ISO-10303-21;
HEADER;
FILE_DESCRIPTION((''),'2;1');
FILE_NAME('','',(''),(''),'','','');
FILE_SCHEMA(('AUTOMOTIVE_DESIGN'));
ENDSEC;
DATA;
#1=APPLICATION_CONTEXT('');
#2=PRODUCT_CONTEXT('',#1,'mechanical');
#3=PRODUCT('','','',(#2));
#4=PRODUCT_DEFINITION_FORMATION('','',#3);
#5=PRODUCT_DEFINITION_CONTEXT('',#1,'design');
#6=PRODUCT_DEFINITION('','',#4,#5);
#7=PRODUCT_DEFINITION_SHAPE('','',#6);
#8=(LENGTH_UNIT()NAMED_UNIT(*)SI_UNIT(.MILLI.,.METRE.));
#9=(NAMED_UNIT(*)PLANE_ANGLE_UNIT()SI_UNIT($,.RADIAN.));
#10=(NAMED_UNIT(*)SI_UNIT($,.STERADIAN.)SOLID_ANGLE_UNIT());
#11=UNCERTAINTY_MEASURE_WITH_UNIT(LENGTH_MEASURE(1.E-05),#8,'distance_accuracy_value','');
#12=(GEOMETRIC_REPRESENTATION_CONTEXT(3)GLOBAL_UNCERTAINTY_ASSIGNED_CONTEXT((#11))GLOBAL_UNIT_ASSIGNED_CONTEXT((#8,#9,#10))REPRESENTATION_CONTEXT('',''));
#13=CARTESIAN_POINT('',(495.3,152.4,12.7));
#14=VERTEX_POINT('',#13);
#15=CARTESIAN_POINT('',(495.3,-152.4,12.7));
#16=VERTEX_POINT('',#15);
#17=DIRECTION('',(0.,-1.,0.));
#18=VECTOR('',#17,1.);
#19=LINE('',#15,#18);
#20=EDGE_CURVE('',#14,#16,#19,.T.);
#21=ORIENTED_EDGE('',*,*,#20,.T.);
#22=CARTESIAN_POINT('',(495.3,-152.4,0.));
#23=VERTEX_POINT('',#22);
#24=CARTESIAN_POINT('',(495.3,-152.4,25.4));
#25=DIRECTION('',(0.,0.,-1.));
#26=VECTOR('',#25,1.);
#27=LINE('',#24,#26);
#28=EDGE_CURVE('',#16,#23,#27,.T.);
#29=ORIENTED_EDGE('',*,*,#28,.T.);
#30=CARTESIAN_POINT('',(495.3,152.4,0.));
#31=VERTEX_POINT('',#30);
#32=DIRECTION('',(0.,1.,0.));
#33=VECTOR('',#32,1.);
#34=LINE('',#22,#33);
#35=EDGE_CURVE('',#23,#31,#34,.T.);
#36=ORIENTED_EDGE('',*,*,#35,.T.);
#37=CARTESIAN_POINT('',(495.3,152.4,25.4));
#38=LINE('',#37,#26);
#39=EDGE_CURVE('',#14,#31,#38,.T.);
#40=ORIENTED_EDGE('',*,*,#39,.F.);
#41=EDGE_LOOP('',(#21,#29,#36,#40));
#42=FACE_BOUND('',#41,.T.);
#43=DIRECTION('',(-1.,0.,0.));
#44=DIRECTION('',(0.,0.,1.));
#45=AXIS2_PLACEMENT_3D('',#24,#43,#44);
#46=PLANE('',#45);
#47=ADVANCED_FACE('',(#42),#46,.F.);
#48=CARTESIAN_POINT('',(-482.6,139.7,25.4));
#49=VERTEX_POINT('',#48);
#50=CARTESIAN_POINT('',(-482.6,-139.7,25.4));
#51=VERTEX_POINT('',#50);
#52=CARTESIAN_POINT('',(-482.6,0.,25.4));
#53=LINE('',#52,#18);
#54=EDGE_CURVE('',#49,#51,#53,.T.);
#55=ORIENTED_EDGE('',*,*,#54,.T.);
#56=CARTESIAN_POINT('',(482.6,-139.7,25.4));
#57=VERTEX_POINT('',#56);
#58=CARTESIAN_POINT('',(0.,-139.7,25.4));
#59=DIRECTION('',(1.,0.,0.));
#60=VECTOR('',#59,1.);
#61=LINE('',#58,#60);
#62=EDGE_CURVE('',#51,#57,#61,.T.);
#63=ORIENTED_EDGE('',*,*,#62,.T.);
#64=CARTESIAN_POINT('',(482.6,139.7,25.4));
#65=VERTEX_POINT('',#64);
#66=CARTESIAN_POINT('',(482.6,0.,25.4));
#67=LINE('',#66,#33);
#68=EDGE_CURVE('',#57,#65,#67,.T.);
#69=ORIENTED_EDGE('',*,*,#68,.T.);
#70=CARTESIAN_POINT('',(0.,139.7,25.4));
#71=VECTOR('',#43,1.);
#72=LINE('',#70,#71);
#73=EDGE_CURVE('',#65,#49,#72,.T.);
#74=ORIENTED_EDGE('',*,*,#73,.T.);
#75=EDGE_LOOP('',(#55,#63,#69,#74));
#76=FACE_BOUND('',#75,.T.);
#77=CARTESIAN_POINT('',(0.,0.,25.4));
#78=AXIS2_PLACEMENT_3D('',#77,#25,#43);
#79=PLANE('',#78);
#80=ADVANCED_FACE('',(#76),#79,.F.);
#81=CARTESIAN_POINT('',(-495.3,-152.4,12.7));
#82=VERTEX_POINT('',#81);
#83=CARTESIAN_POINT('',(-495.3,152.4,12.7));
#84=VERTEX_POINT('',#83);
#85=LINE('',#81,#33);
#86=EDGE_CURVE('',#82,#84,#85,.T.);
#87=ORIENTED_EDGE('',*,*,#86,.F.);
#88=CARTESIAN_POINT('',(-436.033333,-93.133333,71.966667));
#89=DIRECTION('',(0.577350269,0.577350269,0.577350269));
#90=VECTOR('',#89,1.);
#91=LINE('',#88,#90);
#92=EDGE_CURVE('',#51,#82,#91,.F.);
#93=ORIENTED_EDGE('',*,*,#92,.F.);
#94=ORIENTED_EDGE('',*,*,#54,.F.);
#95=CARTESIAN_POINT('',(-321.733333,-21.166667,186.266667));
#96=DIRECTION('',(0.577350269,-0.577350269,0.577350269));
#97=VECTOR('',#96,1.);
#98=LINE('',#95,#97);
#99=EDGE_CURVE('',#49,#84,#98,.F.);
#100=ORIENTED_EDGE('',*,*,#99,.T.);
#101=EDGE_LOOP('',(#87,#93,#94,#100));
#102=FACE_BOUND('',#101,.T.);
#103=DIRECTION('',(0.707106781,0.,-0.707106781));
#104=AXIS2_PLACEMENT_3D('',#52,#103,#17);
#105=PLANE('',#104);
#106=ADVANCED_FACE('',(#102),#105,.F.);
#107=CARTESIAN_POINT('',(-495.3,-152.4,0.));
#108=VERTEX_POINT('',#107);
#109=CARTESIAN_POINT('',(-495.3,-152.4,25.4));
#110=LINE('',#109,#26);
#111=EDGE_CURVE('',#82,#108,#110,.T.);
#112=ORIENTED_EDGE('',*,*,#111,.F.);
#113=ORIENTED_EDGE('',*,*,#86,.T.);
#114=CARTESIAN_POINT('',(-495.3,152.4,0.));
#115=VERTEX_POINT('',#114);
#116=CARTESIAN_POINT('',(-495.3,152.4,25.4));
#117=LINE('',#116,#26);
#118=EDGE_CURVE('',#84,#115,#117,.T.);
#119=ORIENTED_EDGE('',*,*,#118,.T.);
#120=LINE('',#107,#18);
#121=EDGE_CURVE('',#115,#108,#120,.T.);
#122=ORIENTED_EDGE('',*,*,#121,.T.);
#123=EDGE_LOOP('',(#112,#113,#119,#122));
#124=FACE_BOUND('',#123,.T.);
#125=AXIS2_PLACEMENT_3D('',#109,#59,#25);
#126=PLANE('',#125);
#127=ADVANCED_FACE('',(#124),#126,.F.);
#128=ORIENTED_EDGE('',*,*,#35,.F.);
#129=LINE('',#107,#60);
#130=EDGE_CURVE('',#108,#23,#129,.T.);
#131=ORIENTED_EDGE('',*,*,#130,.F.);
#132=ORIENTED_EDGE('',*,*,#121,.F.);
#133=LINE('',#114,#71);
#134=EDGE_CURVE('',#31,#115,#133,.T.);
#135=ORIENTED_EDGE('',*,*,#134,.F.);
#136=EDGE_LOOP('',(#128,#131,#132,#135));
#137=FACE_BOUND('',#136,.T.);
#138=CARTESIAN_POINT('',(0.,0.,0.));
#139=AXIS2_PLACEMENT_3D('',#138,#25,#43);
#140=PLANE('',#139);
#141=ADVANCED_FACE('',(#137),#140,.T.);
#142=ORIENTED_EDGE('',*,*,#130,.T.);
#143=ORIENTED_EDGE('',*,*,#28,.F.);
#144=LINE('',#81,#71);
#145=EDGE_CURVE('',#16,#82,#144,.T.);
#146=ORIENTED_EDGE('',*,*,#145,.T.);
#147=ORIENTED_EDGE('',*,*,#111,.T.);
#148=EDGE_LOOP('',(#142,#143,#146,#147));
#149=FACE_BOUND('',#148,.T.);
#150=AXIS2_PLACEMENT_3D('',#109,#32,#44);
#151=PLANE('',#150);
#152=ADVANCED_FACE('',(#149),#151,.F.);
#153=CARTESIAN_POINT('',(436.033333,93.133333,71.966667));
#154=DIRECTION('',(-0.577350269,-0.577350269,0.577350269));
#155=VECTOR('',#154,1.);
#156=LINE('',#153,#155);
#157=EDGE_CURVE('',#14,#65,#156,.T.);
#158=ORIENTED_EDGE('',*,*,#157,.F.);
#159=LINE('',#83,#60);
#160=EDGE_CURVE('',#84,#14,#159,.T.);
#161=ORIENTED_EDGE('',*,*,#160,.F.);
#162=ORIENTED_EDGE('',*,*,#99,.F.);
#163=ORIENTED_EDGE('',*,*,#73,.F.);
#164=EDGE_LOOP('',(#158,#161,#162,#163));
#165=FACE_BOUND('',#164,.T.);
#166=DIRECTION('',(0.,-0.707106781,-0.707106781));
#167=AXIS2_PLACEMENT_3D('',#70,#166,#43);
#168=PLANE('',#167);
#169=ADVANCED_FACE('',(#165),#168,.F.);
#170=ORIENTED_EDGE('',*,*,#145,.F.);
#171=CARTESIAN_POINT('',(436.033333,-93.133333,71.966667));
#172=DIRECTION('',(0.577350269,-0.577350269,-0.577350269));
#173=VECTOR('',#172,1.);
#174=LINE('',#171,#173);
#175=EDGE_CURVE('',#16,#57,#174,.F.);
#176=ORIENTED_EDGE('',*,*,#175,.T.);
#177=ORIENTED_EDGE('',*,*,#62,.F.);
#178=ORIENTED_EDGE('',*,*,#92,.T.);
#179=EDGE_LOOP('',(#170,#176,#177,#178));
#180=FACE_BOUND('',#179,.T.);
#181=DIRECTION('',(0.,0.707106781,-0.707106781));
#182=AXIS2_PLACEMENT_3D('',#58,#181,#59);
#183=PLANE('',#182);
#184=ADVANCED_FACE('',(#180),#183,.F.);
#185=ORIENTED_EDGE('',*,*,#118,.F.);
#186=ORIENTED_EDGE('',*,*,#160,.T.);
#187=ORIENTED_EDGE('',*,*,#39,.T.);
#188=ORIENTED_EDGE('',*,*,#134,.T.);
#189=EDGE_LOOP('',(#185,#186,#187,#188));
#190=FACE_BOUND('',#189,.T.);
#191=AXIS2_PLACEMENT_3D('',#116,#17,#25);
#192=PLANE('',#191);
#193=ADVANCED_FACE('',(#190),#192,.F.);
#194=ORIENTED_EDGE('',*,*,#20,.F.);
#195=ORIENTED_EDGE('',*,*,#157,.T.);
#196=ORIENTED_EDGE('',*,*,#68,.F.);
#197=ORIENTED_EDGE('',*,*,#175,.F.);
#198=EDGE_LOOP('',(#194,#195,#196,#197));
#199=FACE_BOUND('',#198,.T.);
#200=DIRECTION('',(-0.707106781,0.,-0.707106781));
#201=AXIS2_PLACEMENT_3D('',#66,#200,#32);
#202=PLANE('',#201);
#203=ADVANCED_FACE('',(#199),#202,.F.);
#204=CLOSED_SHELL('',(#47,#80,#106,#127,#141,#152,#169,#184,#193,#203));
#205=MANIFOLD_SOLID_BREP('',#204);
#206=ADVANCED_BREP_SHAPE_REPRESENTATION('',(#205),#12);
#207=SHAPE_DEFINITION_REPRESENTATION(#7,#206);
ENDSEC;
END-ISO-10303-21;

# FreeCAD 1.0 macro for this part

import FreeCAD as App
import Part
import Sketcher

V = App.Vector
Q = App.Units.Quantity


def edges_at(feature, points):
    """Names of the edges that pass closest to the given points."""
    edges = feature.Shape.Edges
    near = lambda p: min(range(len(edges)), key=lambda i: edges[i].distToShape(Part.Vertex(*p))[0])
    return sorted({f"Edge{near(p) + 1}" for p in points})

doc = App.newDocument("Part")
body = doc.addObject("PartDesign::Body", "Body")

# Sketch on XY plane
sketch1 = body.newObject("Sketcher::SketchObject", "Sketch")
sketch1.AttachmentSupport = (doc.getObject("XY_Plane"), [""])
sketch1.MapMode = "FlatFace"
sketch1.addGeometry(Part.LineSegment(V(-495.3, 152.4, 0), V(-495.3, -152.4, 0)), False)
sketch1.addGeometry(Part.LineSegment(V(-495.3, -152.4, 0), V(495.3, -152.4, 0)), False)
sketch1.addGeometry(Part.LineSegment(V(495.3, -152.4, 0), V(495.3, 152.4, 0)), False)
sketch1.addGeometry(Part.LineSegment(V(495.3, 152.4, 0), V(-495.3, 152.4, 0)), False)
sketch1.addConstraint(Sketcher.Constraint("Coincident", 0, 2, 1, 1))
sketch1.addConstraint(Sketcher.Constraint("Coincident", 1, 2, 2, 1))
sketch1.addConstraint(Sketcher.Constraint("Coincident", 2, 2, 3, 1))
sketch1.addConstraint(Sketcher.Constraint("Coincident", 3, 2, 0, 1))
sketch1.addConstraint(Sketcher.Constraint("Vertical", 0))
sketch1.addConstraint(Sketcher.Constraint("Horizontal", 1))
sketch1.addConstraint(Sketcher.Constraint("Vertical", 2))
sketch1.addConstraint(Sketcher.Constraint("Horizontal", 3))
sketch1.addConstraint(Sketcher.Constraint("Symmetric", 0, 2, 2, 2, -1, 1))
sketch1.addConstraint(Sketcher.Constraint("DistanceX", 1, 1, 1, 2, Q("39 in")))
sketch1.addConstraint(Sketcher.Constraint("DistanceY", 0, 2, 0, 1, Q("12 in")))
pad1 = body.newObject("PartDesign::Pad", "Pad")
pad1.Profile = sketch1
pad1.Length = Q("1 in")
doc.recompute()

chamfer = body.newObject("PartDesign::Chamfer", "Chamfer")
chamfer.Base = (pad1, edges_at(pad1, [
    (-495.3, 0, 25.4),
    (0, -152.4, 25.4),
    (495.3, 0, 25.4),
    (0, 152.4, 25.4),
]))
chamfer.Size = Q("0.5 in")

doc.recompute()
